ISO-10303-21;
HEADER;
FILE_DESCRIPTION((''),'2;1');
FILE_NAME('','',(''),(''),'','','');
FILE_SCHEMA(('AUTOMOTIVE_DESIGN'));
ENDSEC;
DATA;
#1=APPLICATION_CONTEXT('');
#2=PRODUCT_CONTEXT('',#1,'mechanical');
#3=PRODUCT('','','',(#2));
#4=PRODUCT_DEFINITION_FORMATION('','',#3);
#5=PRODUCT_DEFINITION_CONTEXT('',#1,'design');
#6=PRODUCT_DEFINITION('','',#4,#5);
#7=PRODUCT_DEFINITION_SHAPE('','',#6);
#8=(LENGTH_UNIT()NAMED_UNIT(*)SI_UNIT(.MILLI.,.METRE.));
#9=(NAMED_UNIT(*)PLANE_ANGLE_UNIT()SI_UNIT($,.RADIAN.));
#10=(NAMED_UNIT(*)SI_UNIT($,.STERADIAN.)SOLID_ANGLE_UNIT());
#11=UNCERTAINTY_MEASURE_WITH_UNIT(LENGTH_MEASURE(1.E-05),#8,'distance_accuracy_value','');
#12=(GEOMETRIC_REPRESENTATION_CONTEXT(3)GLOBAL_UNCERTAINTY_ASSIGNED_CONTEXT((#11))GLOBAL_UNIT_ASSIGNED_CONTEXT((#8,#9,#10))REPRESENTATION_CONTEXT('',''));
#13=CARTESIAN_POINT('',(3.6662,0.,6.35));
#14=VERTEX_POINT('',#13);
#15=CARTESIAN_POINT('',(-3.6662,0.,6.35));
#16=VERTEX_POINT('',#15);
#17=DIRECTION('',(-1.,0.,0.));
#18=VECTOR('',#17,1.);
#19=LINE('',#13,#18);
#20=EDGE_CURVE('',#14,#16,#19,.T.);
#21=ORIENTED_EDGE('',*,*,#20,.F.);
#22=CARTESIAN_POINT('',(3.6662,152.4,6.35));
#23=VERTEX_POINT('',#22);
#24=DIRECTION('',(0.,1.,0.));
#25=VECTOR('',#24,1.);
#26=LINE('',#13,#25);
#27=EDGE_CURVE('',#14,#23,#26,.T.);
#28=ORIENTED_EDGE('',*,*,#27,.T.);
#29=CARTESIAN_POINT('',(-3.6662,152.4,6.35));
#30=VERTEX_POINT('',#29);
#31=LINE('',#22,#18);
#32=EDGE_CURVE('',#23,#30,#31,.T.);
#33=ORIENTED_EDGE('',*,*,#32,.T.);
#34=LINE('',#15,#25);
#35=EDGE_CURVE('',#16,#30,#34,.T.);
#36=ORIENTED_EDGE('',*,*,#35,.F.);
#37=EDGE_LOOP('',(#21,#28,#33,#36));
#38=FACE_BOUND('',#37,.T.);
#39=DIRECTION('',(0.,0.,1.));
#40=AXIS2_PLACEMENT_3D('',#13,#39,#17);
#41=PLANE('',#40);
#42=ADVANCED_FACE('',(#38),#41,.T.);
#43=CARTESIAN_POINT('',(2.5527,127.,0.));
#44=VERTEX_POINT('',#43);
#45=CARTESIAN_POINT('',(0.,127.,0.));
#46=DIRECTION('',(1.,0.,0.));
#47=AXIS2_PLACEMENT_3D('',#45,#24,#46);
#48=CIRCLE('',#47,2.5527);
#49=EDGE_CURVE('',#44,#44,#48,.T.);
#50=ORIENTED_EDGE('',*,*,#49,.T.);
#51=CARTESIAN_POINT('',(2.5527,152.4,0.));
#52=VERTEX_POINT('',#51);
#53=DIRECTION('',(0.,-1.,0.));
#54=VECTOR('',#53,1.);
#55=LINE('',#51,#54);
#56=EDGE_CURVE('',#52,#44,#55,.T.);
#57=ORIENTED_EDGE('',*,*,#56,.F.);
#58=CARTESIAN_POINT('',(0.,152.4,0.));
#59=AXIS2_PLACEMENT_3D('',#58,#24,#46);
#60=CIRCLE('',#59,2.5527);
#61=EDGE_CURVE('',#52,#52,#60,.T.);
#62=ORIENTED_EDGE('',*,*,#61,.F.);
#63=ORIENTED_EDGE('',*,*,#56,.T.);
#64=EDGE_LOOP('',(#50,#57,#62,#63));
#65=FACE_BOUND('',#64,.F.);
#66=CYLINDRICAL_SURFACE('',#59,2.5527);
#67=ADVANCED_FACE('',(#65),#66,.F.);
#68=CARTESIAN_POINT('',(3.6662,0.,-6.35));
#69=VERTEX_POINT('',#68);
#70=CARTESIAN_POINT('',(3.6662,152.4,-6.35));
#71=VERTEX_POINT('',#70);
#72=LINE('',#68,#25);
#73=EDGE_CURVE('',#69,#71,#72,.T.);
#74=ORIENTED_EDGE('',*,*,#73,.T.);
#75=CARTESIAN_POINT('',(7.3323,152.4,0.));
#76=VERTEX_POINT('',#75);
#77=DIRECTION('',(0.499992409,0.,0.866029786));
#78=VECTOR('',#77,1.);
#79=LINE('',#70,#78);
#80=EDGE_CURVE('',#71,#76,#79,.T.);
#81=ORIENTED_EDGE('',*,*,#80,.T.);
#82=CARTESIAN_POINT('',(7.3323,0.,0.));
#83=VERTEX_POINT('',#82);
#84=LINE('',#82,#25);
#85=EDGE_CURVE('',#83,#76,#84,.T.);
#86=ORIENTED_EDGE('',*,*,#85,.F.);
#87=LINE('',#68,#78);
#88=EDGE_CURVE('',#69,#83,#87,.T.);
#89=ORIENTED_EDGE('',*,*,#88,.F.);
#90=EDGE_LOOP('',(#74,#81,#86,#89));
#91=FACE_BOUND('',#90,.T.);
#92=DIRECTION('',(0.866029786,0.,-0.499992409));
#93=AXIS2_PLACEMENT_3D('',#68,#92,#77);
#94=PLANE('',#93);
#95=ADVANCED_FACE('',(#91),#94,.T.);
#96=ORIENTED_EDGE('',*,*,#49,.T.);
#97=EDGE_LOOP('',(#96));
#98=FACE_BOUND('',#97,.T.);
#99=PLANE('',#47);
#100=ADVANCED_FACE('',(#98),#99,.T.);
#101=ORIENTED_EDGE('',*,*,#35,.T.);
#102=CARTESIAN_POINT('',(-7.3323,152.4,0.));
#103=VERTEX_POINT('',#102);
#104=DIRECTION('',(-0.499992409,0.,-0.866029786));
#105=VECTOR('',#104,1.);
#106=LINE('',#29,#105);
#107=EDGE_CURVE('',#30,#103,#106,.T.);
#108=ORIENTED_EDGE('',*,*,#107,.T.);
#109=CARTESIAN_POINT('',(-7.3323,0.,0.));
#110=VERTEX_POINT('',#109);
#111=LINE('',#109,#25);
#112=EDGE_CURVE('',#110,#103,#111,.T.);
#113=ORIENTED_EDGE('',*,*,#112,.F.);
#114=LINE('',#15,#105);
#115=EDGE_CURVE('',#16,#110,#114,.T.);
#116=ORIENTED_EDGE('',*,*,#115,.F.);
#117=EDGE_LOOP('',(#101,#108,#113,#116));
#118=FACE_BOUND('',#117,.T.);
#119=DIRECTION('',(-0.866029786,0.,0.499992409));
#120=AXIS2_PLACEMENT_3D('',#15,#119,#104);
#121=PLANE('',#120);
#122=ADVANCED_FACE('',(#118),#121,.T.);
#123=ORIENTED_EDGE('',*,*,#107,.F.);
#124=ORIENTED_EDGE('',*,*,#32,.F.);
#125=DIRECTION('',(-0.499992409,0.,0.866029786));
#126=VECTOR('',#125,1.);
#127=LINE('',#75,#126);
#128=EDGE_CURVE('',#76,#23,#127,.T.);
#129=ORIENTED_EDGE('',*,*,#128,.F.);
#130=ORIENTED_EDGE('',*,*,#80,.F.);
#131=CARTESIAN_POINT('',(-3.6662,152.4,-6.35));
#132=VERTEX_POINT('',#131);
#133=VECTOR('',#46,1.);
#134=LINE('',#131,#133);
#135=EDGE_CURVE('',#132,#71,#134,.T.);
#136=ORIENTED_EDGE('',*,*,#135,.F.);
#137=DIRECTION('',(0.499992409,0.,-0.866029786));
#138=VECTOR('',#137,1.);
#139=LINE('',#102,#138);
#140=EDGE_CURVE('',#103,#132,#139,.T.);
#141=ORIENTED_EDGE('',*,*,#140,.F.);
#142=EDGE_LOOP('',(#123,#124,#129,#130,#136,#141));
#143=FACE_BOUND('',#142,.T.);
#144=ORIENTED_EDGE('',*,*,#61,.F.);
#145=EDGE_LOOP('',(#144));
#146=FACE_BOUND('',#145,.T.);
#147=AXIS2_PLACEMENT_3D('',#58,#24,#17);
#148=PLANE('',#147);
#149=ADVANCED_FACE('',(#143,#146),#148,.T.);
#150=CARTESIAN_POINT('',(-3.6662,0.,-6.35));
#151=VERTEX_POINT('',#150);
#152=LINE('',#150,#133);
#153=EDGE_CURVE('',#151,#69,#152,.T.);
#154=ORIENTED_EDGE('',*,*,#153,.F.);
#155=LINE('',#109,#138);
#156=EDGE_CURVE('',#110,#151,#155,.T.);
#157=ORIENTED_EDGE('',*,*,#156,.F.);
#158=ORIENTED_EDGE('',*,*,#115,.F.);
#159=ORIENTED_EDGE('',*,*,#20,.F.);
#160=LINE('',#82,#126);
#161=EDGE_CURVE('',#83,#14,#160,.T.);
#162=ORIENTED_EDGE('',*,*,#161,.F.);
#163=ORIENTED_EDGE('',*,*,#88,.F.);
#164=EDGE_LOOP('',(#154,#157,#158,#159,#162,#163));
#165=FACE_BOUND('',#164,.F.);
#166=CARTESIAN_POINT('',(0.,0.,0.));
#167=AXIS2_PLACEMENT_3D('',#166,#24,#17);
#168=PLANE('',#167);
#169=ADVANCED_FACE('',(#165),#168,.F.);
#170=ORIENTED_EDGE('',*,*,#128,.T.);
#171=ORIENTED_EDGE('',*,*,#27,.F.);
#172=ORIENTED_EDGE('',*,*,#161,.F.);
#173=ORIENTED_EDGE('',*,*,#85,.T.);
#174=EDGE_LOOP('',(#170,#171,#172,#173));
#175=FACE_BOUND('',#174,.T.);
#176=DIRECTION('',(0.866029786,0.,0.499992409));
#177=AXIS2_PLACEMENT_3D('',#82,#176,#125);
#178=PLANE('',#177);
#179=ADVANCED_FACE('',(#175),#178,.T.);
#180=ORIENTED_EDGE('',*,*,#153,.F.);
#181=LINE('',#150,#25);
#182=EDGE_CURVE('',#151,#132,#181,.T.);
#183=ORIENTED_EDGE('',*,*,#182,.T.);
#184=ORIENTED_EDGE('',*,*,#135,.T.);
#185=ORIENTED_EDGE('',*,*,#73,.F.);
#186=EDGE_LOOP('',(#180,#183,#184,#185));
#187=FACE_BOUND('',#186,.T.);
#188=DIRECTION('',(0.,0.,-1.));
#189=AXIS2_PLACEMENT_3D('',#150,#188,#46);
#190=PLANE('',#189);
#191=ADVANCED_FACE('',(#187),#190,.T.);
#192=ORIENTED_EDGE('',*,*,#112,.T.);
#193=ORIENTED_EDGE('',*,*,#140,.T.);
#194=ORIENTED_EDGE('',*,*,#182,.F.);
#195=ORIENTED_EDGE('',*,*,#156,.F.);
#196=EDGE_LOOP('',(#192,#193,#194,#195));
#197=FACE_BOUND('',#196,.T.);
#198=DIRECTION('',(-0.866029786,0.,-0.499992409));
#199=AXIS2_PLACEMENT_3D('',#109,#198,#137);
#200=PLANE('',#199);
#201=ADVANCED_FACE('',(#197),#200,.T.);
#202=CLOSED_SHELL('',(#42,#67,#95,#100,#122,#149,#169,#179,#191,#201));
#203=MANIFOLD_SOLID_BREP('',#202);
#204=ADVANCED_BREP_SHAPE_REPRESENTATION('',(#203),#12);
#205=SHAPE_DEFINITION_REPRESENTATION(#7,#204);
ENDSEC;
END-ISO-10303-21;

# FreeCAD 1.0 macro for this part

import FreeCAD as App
import Part
import Sketcher
Q = App.Units.Quantity


def add_polygon(sketch, points):
    """Adds a closed chain of lines whose ends are joined by coincident constraints."""
    first, n = sketch.GeometryCount, len(points)
    for a, b in zip(points, points[1:] + points[:1]):
        sketch.addGeometry(Part.LineSegment(App.Vector(*a, 0), App.Vector(*b, 0)), False)
    for i in range(n):
        sketch.addConstraint(Sketcher.Constraint("Coincident", first + i, 2, first + (i + 1) % n, 1))

doc = App.newDocument("Part")
body = doc.addObject("PartDesign::Body", "Body")

sketch1 = doc.addObject("Sketcher::SketchObject", "Sketch")
body.addObject(sketch1)
sketch1.AttachmentSupport = (doc.XZ_Plane, [""])
sketch1.MapMode = "FlatFace"
add_polygon(sketch1, [(3.6662, 6.35), (7.3323, 0), (3.6662, -6.35), (-3.6662, -6.35), (-7.3323, 0), (-3.6662, 6.35)])
sketch1.addConstraint(Sketcher.Constraint("Horizontal", 2))
sketch1.addConstraint(Sketcher.Constraint("Horizontal", 5))
sketch1.addConstraint(Sketcher.Constraint("Symmetric", 0, 2, 3, 2, -1, 1))
sketch1.addConstraint(Sketcher.Constraint("Symmetric", 1, 2, 4, 2, -1, 1))
sketch1.addConstraint(Sketcher.Constraint("PointOnObject", 0, 2, -1))
sketch1.addConstraint(Sketcher.Constraint("Parallel", 0, 3))
sketch1.addConstraint(Sketcher.Constraint("Vertical", 2, 2, 4, 2))
sketch1.addConstraint(Sketcher.Constraint("DistanceY", 2, 2, 4, 2, Q("0.5 in")))
sketch1.addConstraint(Sketcher.Constraint("Angle", 0, Q("-60.0005 deg")))
sketch1.addConstraint(Sketcher.Constraint("DistanceX", 2, 2, 0, 2, Q("0.433 in")))
pad1 = doc.addObject("PartDesign::Pad", "Pad")
body.addObject(pad1)
pad1.Profile = sketch1
pad1.Length = Q("6 in")
pad1.Reversed = True

sketch2 = doc.addObject("Sketcher::SketchObject", "Sketch001")
body.addObject(sketch2)
sketch2.AttachmentSupport = (doc.XZ_Plane, [""])
sketch2.MapMode = "FlatFace"
sketch2.AttachmentOffset = App.Placement(App.Vector(0, 0, -6 * 25.4), App.Rotation())
sketch2.addGeometry(Part.Circle(App.Vector(0, 0, 0), App.Vector(0, 0, 1), 2.5527), False)
sketch2.addConstraint(Sketcher.Constraint("Coincident", 0, 3, -1, 1))
sketch2.addConstraint(Sketcher.Constraint("Diameter", 0, Q("0.201 in")))
pocket1 = doc.addObject("PartDesign::Pocket", "Pocket")
body.addObject(pocket1)
pocket1.Profile = sketch2
pocket1.Length = Q("1 in")
pocket1.Reversed = True

doc.recompute()
